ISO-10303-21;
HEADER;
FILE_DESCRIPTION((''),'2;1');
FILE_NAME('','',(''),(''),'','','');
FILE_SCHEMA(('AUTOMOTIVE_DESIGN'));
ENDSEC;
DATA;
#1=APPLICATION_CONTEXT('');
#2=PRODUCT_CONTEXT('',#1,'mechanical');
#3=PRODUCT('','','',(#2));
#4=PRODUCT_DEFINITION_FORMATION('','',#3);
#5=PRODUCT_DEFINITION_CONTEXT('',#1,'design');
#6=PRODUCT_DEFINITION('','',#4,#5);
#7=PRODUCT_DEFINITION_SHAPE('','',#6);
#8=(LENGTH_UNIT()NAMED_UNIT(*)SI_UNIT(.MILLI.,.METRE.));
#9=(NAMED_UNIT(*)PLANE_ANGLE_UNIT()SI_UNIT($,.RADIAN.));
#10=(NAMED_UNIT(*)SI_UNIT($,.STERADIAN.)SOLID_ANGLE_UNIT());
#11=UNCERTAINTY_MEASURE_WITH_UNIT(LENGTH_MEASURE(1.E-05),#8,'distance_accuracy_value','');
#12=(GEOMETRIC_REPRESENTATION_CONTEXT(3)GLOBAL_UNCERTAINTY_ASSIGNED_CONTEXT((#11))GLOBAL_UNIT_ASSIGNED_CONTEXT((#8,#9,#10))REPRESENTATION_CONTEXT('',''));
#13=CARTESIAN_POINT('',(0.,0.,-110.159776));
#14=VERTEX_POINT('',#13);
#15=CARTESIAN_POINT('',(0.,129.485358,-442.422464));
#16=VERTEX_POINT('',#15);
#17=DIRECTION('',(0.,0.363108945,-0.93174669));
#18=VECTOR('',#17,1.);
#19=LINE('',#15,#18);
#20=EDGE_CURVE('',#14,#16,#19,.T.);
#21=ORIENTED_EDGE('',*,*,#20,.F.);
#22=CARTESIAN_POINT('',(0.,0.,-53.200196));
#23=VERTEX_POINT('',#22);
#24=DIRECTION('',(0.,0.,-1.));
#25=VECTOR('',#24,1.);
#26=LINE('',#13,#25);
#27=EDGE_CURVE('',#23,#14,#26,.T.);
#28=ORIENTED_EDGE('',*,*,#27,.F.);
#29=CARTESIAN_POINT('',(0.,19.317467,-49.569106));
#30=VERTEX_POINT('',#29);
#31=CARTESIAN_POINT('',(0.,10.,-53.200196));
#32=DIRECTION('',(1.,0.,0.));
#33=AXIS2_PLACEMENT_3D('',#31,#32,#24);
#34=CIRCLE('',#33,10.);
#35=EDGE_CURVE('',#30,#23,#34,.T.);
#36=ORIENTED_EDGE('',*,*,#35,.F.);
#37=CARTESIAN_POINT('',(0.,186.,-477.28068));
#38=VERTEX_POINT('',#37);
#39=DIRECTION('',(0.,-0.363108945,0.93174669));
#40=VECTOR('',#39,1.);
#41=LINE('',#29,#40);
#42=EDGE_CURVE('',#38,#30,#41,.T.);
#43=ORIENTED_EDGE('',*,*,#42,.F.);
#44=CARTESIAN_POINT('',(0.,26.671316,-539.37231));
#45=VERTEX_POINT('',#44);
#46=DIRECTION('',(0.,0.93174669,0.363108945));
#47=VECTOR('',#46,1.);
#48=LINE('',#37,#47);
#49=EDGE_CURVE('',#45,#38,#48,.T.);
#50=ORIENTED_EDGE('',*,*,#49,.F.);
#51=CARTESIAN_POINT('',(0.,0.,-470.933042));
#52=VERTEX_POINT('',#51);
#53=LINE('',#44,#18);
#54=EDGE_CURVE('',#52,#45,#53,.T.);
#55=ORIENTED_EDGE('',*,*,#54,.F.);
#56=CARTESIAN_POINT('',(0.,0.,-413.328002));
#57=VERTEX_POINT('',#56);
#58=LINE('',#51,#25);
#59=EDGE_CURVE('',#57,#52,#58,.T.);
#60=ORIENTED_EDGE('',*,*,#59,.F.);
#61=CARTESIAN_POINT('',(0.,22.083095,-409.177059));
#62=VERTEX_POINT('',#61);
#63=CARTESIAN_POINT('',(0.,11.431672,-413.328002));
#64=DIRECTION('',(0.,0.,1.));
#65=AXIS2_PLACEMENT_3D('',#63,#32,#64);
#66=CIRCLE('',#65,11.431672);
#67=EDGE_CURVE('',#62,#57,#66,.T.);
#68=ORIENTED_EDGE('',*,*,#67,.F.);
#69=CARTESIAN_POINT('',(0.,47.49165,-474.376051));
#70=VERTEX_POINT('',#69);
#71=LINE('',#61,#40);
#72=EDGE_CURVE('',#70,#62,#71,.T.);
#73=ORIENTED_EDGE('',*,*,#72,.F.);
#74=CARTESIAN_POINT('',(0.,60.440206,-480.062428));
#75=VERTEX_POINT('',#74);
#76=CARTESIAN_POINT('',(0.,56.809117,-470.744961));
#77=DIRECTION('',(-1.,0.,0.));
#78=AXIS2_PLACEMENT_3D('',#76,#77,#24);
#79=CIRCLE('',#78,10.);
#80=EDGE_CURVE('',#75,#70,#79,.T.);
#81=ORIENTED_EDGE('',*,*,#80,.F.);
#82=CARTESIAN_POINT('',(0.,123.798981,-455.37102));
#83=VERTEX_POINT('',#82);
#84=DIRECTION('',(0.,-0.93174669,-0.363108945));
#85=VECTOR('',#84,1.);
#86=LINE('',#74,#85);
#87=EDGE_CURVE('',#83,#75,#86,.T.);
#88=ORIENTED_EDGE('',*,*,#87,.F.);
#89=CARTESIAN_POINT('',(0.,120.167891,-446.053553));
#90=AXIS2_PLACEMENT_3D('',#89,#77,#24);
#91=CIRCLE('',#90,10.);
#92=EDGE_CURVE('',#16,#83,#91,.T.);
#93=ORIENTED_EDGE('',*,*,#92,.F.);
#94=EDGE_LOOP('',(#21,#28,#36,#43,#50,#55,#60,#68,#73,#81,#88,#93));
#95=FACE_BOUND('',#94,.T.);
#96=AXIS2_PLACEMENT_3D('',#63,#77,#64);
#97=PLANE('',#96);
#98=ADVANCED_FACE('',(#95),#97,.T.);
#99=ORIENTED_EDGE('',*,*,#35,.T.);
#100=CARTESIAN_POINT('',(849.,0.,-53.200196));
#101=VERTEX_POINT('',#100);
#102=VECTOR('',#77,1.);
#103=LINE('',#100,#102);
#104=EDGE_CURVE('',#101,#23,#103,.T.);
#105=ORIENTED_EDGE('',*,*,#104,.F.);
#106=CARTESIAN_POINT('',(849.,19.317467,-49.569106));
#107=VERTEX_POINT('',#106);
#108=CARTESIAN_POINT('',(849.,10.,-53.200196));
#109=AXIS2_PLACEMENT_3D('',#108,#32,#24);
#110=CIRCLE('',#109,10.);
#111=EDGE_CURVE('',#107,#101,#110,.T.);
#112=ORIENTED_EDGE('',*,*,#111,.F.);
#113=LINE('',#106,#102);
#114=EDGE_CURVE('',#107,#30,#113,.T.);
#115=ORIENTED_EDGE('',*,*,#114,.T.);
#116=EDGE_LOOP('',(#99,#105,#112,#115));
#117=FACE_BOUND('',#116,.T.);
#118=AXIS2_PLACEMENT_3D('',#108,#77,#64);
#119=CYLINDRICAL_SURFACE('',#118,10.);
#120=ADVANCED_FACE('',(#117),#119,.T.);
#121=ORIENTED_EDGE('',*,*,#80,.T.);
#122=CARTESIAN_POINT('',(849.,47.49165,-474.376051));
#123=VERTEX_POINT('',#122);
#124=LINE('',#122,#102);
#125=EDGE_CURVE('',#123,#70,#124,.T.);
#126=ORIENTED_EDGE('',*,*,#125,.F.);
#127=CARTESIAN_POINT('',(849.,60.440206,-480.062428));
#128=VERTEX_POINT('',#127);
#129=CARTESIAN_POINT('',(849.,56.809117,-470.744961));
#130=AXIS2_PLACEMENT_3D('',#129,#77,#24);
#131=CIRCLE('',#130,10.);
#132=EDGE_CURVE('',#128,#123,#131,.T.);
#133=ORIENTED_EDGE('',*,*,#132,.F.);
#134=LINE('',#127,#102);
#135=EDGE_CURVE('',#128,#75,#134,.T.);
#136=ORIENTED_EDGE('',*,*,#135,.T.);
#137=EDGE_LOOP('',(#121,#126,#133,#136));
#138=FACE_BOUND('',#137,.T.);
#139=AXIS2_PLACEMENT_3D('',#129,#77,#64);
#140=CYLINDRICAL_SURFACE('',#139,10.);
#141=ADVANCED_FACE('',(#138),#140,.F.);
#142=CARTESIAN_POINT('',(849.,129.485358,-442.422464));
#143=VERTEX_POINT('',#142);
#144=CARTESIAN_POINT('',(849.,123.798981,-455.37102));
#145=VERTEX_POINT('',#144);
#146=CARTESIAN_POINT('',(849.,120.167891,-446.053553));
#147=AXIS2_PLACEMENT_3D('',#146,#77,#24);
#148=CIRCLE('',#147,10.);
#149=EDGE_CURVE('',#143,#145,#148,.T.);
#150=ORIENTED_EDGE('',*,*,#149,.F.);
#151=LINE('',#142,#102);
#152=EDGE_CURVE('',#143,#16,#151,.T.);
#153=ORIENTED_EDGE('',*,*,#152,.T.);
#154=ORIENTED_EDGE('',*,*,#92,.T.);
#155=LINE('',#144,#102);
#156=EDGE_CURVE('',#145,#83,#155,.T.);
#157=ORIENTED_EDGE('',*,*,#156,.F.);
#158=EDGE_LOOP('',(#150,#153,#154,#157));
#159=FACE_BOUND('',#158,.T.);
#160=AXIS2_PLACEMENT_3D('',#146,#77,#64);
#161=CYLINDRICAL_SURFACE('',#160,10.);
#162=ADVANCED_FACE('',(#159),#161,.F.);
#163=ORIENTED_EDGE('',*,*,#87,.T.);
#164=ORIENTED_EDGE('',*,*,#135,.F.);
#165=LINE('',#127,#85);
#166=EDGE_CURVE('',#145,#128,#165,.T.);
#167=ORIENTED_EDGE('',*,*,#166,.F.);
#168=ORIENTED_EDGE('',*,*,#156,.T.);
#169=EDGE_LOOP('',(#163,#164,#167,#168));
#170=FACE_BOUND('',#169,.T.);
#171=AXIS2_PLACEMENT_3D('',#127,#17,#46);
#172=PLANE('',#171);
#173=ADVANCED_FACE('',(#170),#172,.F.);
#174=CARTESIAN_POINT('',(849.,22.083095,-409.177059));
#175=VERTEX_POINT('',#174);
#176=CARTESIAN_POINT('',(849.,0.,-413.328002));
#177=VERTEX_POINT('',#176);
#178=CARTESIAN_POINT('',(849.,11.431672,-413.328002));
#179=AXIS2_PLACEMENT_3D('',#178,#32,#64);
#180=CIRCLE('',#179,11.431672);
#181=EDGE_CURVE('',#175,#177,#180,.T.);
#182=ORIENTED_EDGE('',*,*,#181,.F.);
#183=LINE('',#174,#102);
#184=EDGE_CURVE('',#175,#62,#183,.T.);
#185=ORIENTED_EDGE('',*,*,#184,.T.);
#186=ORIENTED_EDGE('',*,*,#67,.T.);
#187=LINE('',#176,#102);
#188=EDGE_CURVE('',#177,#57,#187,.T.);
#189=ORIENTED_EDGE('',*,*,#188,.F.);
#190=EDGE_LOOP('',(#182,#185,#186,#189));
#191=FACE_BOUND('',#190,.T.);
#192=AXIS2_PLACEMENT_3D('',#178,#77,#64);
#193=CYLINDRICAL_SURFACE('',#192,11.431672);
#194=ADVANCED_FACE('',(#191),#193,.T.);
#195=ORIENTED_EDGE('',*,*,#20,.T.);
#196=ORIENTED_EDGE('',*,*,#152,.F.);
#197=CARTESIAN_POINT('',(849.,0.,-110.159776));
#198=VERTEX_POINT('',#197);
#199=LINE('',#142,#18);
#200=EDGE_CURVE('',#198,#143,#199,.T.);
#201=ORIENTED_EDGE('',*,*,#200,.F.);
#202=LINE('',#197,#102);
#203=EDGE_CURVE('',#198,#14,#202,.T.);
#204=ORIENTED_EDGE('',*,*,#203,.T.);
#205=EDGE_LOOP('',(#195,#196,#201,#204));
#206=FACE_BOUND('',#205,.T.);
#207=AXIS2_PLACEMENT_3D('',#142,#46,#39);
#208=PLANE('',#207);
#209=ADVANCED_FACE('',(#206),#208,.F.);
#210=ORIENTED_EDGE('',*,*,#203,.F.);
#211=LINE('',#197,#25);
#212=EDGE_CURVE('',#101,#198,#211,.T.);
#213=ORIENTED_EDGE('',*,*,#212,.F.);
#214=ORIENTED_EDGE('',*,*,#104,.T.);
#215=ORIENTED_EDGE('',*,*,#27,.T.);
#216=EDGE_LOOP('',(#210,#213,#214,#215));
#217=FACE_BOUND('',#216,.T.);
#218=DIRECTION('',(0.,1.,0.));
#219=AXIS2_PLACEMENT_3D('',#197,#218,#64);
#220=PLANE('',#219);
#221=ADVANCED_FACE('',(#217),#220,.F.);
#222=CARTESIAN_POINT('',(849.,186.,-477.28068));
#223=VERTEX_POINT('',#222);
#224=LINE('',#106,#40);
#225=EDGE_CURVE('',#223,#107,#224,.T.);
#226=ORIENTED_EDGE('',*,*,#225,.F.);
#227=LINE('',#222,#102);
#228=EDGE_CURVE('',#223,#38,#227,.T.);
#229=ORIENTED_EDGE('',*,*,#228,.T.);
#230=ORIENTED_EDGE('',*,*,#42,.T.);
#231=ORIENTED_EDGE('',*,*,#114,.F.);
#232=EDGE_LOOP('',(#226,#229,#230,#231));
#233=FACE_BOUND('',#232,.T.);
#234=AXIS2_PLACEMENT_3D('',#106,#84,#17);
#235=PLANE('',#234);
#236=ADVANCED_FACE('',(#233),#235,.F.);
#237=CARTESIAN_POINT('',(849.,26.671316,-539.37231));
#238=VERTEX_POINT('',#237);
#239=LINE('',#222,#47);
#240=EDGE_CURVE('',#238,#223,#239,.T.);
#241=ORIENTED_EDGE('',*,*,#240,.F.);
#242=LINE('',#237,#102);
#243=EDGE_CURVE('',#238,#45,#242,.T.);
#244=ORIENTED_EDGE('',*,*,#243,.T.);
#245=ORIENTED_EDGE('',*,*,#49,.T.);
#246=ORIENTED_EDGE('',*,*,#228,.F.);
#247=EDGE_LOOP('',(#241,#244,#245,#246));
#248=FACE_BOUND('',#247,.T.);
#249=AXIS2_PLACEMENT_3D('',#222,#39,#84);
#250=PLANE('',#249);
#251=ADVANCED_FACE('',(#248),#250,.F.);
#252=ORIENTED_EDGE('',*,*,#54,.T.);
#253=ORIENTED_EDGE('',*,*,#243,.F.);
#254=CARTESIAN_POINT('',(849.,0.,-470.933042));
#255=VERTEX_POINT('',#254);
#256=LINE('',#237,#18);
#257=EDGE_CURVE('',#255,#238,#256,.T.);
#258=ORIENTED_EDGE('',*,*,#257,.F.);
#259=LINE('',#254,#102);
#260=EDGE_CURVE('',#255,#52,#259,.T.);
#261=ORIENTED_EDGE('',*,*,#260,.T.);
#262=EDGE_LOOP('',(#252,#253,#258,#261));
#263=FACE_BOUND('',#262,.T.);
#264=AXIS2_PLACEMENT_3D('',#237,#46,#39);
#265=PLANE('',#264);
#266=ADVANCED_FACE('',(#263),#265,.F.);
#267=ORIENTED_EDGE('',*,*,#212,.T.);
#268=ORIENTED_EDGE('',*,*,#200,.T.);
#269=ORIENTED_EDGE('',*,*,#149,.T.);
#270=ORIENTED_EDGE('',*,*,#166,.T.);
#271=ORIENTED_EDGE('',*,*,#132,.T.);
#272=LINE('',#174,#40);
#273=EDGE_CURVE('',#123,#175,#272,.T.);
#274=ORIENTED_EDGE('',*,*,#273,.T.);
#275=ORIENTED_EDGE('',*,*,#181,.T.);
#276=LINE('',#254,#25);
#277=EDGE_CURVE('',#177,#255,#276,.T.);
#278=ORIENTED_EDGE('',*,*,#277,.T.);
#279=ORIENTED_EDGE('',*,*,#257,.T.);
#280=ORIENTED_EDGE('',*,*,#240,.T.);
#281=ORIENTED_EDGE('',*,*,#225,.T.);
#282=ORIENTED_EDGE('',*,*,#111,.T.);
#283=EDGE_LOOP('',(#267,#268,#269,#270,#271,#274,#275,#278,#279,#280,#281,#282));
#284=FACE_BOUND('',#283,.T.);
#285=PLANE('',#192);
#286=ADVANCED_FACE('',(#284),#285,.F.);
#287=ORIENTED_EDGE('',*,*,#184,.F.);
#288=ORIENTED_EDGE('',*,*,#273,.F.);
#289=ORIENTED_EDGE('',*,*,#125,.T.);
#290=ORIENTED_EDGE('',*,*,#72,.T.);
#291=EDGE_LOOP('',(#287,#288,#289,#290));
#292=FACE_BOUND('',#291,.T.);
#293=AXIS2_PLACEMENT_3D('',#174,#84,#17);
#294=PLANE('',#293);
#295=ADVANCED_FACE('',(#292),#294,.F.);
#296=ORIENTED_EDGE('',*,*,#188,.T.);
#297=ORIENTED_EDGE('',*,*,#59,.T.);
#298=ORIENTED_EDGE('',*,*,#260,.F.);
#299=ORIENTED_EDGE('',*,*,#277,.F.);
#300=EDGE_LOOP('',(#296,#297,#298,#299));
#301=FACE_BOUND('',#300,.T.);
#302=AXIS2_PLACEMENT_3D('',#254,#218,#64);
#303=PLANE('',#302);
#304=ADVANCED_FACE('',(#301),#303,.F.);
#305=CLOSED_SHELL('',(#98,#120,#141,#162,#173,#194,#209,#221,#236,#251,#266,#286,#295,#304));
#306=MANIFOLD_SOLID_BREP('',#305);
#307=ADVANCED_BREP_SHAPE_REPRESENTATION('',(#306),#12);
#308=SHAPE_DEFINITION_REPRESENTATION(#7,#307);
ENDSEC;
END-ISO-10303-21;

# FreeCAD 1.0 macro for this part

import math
import FreeCAD as App
import Part
import Sketcher

V = App.Vector
Q = App.Units.Quantity

doc = App.newDocument("Part")
body = doc.addObject("PartDesign::Body", "Body")

# Sketch on YZ plane
sketch1 = doc.addObject("Sketcher::SketchObject", "Sketch")
body.addObject(sketch1)
sketch1.AttachmentSupport = (doc.YZ_Plane, [""])
sketch1.MapMode = "FlatFace"
sketch1.addGeometry([
    Part.LineSegment(V(186, -477, 0), V(19, -50, 0)),  # 0
    Part.ArcOfCircle(Part.Circle(V(10, -53, 0), V(0, 0, 1), 10), math.radians(21), math.radians(180)),  # 1
    Part.LineSegment(V(0, -53, 0), V(0, -110, 0)),  # 2
    Part.LineSegment(V(0, -110, 0), V(129, -442, 0)),  # 3
    Part.ArcOfCircle(Part.Circle(V(120, -446, 0), V(0, 0, 1), 10), math.radians(-69), math.radians(21)),  # 4
    Part.LineSegment(V(124, -455, 0), V(60, -480, 0)),  # 5
    Part.ArcOfCircle(Part.Circle(V(57, -471, 0), V(0, 0, 1), 10), math.radians(-159), math.radians(-69)),  # 6
    Part.LineSegment(V(47, -474, 0), V(22, -409, 0)),  # 7
    Part.ArcOfCircle(Part.Circle(V(11, -413, 0), V(0, 0, 1), 11), math.radians(21), math.radians(180)),  # 8
    Part.LineSegment(V(0, -413, 0), V(0, -471, 0)),  # 9
    Part.LineSegment(V(0, -471, 0), V(27, -539, 0)),  # 10
    Part.LineSegment(V(27, -539, 0), V(186, -477, 0)),  # 11
], False)
sketch1.addConstraint([
    Sketcher.Constraint("Tangent", 0, 2, 1, 1),
    Sketcher.Constraint("Tangent", 1, 2, 2, 1),
    Sketcher.Constraint("Coincident", 2, 2, 3, 1),
    Sketcher.Constraint("Tangent", 3, 2, 4, 2),
    Sketcher.Constraint("Tangent", 4, 1, 5, 1),
    Sketcher.Constraint("Tangent", 5, 2, 6, 2),
    Sketcher.Constraint("Tangent", 6, 1, 7, 1),
    Sketcher.Constraint("Tangent", 7, 2, 8, 1),
    Sketcher.Constraint("Tangent", 8, 2, 9, 1),
    Sketcher.Constraint("Coincident", 9, 2, 10, 1),
    Sketcher.Constraint("Coincident", 10, 2, 11, 1),
    Sketcher.Constraint("Coincident", 11, 2, 0, 1),
    Sketcher.Constraint("Vertical", 2),
    Sketcher.Constraint("Vertical", 9),
    Sketcher.Constraint("Equal", 1, 4),
    Sketcher.Constraint("Equal", 4, 6),
    Sketcher.Constraint("PointOnObject", 1, 2, -2),
    Sketcher.Constraint("PointOnObject", 8, 2, -2),
    Sketcher.Constraint("Parallel", 0, 3),
    Sketcher.Constraint("Perpendicular", 3, 5),
    Sketcher.Constraint("Perpendicular", 5, 7),
    Sketcher.Constraint("Parallel", 7, 10),
    Sketcher.Constraint("Perpendicular", 10, 11),
    Sketcher.Constraint("Radius", 1, Q("10 mm")),
    Sketcher.Constraint("Distance", 5, Q("68 mm")),
    Sketcher.Constraint("Distance", 11, Q("171 mm")),
    Sketcher.Constraint("DistanceX", -1, 1, 11, 2, Q("186 mm")),
    Sketcher.Constraint("DistanceY", 8, 3, -1, 1, Q("413.328002 mm")),
    Sketcher.Constraint("Radius", 8, Q("11.431672 mm")),
    Sketcher.Constraint("DistanceY", 2, 2, 2, 1, Q("56.95958 mm")),
    Sketcher.Constraint("DistanceY", 9, 2, 9, 1, Q("57.60504 mm")),
    Sketcher.Constraint("DistanceY", 6, 3, 7, 2, Q("61.567902 mm")),
])
pad1 = doc.addObject("PartDesign::Pad", "Pad")
body.addObject(pad1)
pad1.Profile = sketch1
pad1.Length = 849

doc.recompute()
